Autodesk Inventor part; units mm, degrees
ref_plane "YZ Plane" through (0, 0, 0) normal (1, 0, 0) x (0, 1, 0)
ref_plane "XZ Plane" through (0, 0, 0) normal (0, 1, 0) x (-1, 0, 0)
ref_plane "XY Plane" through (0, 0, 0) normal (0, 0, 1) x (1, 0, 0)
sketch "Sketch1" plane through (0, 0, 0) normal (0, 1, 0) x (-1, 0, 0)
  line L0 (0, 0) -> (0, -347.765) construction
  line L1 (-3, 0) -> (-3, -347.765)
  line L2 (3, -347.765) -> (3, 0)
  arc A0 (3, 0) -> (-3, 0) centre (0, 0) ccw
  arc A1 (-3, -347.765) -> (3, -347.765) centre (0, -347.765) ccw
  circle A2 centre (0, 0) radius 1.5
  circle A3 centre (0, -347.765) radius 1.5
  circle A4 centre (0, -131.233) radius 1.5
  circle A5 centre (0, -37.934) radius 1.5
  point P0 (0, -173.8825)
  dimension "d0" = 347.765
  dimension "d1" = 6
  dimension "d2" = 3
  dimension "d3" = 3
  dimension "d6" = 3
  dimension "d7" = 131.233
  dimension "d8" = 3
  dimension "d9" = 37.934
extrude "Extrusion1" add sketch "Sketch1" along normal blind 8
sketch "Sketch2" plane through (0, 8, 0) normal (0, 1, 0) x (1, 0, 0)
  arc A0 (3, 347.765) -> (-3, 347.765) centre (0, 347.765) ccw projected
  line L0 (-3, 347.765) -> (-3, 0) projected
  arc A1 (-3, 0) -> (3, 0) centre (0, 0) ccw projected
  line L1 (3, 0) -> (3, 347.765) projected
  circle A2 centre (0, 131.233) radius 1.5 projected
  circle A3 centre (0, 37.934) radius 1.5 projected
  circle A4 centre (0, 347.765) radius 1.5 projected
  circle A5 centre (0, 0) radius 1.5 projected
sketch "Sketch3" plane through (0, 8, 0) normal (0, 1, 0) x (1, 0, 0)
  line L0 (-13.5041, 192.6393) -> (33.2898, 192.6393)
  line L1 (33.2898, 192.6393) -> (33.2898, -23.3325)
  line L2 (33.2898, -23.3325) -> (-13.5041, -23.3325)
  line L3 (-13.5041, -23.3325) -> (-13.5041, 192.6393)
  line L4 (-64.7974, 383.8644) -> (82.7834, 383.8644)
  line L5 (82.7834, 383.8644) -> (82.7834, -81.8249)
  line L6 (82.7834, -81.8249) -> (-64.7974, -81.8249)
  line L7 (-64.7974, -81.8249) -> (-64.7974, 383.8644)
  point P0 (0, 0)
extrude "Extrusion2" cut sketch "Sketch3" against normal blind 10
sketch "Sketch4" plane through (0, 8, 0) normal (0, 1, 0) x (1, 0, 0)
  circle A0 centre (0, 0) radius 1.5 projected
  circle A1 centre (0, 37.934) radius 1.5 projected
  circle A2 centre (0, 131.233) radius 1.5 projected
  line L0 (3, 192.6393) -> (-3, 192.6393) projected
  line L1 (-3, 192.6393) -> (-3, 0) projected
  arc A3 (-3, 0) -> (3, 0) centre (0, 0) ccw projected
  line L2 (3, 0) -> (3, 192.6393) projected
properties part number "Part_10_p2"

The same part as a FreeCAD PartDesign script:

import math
import FreeCAD as App
import Part
import Sketcher

V = App.Vector

doc = App.newDocument("Part")
body = doc.addObject("PartDesign::Body", "Body")

sketch1 = doc.addObject("Sketcher::SketchObject", "Sketch")
body.addObject(sketch1)
sketch1.AttachmentSupport = (doc.XZ_Plane, [""])
sketch1.MapMode = "FlatFace"
sketch1.addGeometry([
    Part.ArcOfCircle(Part.Circle(V(0, 0, 0), V(0, 0, 1), 3), math.radians(0), math.radians(180)),
    Part.LineSegment(V(3, 0, 0), V(3, -347.8, 0)),
    Part.ArcOfCircle(Part.Circle(V(0, -347.8, 0), V(0, 0, 1), 3), math.radians(180), math.radians(360)),
    Part.LineSegment(V(-3, -347.8, 0), V(-3, 0, 0)),
    Part.Circle(V(0, -347.8, 0), V(0, 0, 1), 1.5),
    Part.Circle(V(0, -131.2, 0), V(0, 0, 1), 1.5),
    Part.Circle(V(0, -37.9, 0), V(0, 0, 1), 1.5),
    Part.Circle(V(0, 0, 0), V(0, 0, 1), 1.5),
], False)
sketch1.addConstraint([
    Sketcher.Constraint("Tangent", 0, 1, 1, 1),
    Sketcher.Constraint("Tangent", 1, 2, 2, 2),
    Sketcher.Constraint("Tangent", 2, 1, 3, 1),
    Sketcher.Constraint("Tangent", 3, 2, 0, 2),
    Sketcher.Constraint("Vertical", 1),
    Sketcher.Constraint("Vertical", 3),
    Sketcher.Constraint("Coincident", 0, 3, -1, 1),
    Sketcher.Constraint("Coincident", 7, 3, -1, 1),
    Sketcher.Constraint("Coincident", 4, 3, 2, 3),
    Sketcher.Constraint("Equal", 4, 5),
    Sketcher.Constraint("Equal", 5, 6),
    Sketcher.Constraint("Equal", 6, 7),
    Sketcher.Constraint("PointOnObject", 5, 3, -2),
    Sketcher.Constraint("PointOnObject", 6, 3, -2),
    Sketcher.Constraint("Diameter", 4, 3.0),
    Sketcher.Constraint("Radius", 0, 3.0),
    Sketcher.Constraint("DistanceY", 1, 2, 1, 1, 347.765),
    Sketcher.Constraint("DistanceY", 5, 3, -1, 1, 131.233),
    Sketcher.Constraint("DistanceY", 6, 3, -1, 1, 37.934),
])
pad1 = doc.addObject("PartDesign::Pad", "Pad")
body.addObject(pad1)
pad1.Profile = sketch1
pad1.Length = 8
pad1.Reversed = True

sketch2 = doc.addObject("Sketcher::SketchObject", "Sketch001")
body.addObject(sketch2)
sketch2.AttachmentSupport = (doc.XZ_Plane, [""])
sketch2.MapMode = "FlatFace"
sketch2.AttachmentOffset = App.Placement(V(0, 0, -8), App.Rotation())
sketch2.addGeometry([
    Part.LineSegment(V(83, -384, 0), V(-65, -384, 0)),
    Part.LineSegment(V(-65, -384, 0), V(-65, 82, 0)),
    Part.LineSegment(V(-65, 82, 0), V(83, 82, 0)),
    Part.LineSegment(V(83, 82, 0), V(83, -384, 0)),
    Part.LineSegment(V(-14, 23, 0), V(-14, -193, 0)),
    Part.LineSegment(V(-14, -193, 0), V(33, -193, 0)),
    Part.LineSegment(V(33, -193, 0), V(33, 23, 0)),
    Part.LineSegment(V(33, 23, 0), V(-14, 23, 0)),
], False)
sketch2.addConstraint([
    Sketcher.Constraint("Coincident", 0, 2, 1, 1),
    Sketcher.Constraint("Coincident", 1, 2, 2, 1),
    Sketcher.Constraint("Coincident", 2, 2, 3, 1),
    Sketcher.Constraint("Coincident", 3, 2, 0, 1),
    Sketcher.Constraint("Coincident", 4, 2, 5, 1),
    Sketcher.Constraint("Coincident", 5, 2, 6, 1),
    Sketcher.Constraint("Coincident", 6, 2, 7, 1),
    Sketcher.Constraint("Coincident", 7, 2, 4, 1),
    Sketcher.Constraint("Horizontal", 0),
    Sketcher.Constraint("Vertical", 1),
    Sketcher.Constraint("Horizontal", 2),
    Sketcher.Constraint("Vertical", 3),
    Sketcher.Constraint("Vertical", 4),
    Sketcher.Constraint("Horizontal", 5),
    Sketcher.Constraint("Vertical", 6),
    Sketcher.Constraint("Horizontal", 7),
    Sketcher.Constraint("DistanceX", 5, 1, 5, 2, 46.794),
    Sketcher.Constraint("DistanceX", 0, 2, 0, 1, 147.5808),
    Sketcher.Constraint("DistanceY", 1, 1, 1, 2, 465.6893),
    Sketcher.Constraint("DistanceY", 4, 2, 4, 1, 215.9718),
    Sketcher.Constraint("DistanceY", -1, 1, 1, 2, 81.825),
    Sketcher.Constraint("DistanceX", 4, 2, -1, 1, 13.504),
    Sketcher.Constraint("DistanceY", 0, 2, 4, 2, 191.225),
    Sketcher.Constraint("DistanceX", 0, 2, -1, 1, 64.7974),
])
pocket1 = doc.addObject("PartDesign::Pocket", "Pocket")
body.addObject(pocket1)
pocket1.Profile = sketch2
pocket1.Length = 10
pocket1.Reversed = True

doc.recompute()
